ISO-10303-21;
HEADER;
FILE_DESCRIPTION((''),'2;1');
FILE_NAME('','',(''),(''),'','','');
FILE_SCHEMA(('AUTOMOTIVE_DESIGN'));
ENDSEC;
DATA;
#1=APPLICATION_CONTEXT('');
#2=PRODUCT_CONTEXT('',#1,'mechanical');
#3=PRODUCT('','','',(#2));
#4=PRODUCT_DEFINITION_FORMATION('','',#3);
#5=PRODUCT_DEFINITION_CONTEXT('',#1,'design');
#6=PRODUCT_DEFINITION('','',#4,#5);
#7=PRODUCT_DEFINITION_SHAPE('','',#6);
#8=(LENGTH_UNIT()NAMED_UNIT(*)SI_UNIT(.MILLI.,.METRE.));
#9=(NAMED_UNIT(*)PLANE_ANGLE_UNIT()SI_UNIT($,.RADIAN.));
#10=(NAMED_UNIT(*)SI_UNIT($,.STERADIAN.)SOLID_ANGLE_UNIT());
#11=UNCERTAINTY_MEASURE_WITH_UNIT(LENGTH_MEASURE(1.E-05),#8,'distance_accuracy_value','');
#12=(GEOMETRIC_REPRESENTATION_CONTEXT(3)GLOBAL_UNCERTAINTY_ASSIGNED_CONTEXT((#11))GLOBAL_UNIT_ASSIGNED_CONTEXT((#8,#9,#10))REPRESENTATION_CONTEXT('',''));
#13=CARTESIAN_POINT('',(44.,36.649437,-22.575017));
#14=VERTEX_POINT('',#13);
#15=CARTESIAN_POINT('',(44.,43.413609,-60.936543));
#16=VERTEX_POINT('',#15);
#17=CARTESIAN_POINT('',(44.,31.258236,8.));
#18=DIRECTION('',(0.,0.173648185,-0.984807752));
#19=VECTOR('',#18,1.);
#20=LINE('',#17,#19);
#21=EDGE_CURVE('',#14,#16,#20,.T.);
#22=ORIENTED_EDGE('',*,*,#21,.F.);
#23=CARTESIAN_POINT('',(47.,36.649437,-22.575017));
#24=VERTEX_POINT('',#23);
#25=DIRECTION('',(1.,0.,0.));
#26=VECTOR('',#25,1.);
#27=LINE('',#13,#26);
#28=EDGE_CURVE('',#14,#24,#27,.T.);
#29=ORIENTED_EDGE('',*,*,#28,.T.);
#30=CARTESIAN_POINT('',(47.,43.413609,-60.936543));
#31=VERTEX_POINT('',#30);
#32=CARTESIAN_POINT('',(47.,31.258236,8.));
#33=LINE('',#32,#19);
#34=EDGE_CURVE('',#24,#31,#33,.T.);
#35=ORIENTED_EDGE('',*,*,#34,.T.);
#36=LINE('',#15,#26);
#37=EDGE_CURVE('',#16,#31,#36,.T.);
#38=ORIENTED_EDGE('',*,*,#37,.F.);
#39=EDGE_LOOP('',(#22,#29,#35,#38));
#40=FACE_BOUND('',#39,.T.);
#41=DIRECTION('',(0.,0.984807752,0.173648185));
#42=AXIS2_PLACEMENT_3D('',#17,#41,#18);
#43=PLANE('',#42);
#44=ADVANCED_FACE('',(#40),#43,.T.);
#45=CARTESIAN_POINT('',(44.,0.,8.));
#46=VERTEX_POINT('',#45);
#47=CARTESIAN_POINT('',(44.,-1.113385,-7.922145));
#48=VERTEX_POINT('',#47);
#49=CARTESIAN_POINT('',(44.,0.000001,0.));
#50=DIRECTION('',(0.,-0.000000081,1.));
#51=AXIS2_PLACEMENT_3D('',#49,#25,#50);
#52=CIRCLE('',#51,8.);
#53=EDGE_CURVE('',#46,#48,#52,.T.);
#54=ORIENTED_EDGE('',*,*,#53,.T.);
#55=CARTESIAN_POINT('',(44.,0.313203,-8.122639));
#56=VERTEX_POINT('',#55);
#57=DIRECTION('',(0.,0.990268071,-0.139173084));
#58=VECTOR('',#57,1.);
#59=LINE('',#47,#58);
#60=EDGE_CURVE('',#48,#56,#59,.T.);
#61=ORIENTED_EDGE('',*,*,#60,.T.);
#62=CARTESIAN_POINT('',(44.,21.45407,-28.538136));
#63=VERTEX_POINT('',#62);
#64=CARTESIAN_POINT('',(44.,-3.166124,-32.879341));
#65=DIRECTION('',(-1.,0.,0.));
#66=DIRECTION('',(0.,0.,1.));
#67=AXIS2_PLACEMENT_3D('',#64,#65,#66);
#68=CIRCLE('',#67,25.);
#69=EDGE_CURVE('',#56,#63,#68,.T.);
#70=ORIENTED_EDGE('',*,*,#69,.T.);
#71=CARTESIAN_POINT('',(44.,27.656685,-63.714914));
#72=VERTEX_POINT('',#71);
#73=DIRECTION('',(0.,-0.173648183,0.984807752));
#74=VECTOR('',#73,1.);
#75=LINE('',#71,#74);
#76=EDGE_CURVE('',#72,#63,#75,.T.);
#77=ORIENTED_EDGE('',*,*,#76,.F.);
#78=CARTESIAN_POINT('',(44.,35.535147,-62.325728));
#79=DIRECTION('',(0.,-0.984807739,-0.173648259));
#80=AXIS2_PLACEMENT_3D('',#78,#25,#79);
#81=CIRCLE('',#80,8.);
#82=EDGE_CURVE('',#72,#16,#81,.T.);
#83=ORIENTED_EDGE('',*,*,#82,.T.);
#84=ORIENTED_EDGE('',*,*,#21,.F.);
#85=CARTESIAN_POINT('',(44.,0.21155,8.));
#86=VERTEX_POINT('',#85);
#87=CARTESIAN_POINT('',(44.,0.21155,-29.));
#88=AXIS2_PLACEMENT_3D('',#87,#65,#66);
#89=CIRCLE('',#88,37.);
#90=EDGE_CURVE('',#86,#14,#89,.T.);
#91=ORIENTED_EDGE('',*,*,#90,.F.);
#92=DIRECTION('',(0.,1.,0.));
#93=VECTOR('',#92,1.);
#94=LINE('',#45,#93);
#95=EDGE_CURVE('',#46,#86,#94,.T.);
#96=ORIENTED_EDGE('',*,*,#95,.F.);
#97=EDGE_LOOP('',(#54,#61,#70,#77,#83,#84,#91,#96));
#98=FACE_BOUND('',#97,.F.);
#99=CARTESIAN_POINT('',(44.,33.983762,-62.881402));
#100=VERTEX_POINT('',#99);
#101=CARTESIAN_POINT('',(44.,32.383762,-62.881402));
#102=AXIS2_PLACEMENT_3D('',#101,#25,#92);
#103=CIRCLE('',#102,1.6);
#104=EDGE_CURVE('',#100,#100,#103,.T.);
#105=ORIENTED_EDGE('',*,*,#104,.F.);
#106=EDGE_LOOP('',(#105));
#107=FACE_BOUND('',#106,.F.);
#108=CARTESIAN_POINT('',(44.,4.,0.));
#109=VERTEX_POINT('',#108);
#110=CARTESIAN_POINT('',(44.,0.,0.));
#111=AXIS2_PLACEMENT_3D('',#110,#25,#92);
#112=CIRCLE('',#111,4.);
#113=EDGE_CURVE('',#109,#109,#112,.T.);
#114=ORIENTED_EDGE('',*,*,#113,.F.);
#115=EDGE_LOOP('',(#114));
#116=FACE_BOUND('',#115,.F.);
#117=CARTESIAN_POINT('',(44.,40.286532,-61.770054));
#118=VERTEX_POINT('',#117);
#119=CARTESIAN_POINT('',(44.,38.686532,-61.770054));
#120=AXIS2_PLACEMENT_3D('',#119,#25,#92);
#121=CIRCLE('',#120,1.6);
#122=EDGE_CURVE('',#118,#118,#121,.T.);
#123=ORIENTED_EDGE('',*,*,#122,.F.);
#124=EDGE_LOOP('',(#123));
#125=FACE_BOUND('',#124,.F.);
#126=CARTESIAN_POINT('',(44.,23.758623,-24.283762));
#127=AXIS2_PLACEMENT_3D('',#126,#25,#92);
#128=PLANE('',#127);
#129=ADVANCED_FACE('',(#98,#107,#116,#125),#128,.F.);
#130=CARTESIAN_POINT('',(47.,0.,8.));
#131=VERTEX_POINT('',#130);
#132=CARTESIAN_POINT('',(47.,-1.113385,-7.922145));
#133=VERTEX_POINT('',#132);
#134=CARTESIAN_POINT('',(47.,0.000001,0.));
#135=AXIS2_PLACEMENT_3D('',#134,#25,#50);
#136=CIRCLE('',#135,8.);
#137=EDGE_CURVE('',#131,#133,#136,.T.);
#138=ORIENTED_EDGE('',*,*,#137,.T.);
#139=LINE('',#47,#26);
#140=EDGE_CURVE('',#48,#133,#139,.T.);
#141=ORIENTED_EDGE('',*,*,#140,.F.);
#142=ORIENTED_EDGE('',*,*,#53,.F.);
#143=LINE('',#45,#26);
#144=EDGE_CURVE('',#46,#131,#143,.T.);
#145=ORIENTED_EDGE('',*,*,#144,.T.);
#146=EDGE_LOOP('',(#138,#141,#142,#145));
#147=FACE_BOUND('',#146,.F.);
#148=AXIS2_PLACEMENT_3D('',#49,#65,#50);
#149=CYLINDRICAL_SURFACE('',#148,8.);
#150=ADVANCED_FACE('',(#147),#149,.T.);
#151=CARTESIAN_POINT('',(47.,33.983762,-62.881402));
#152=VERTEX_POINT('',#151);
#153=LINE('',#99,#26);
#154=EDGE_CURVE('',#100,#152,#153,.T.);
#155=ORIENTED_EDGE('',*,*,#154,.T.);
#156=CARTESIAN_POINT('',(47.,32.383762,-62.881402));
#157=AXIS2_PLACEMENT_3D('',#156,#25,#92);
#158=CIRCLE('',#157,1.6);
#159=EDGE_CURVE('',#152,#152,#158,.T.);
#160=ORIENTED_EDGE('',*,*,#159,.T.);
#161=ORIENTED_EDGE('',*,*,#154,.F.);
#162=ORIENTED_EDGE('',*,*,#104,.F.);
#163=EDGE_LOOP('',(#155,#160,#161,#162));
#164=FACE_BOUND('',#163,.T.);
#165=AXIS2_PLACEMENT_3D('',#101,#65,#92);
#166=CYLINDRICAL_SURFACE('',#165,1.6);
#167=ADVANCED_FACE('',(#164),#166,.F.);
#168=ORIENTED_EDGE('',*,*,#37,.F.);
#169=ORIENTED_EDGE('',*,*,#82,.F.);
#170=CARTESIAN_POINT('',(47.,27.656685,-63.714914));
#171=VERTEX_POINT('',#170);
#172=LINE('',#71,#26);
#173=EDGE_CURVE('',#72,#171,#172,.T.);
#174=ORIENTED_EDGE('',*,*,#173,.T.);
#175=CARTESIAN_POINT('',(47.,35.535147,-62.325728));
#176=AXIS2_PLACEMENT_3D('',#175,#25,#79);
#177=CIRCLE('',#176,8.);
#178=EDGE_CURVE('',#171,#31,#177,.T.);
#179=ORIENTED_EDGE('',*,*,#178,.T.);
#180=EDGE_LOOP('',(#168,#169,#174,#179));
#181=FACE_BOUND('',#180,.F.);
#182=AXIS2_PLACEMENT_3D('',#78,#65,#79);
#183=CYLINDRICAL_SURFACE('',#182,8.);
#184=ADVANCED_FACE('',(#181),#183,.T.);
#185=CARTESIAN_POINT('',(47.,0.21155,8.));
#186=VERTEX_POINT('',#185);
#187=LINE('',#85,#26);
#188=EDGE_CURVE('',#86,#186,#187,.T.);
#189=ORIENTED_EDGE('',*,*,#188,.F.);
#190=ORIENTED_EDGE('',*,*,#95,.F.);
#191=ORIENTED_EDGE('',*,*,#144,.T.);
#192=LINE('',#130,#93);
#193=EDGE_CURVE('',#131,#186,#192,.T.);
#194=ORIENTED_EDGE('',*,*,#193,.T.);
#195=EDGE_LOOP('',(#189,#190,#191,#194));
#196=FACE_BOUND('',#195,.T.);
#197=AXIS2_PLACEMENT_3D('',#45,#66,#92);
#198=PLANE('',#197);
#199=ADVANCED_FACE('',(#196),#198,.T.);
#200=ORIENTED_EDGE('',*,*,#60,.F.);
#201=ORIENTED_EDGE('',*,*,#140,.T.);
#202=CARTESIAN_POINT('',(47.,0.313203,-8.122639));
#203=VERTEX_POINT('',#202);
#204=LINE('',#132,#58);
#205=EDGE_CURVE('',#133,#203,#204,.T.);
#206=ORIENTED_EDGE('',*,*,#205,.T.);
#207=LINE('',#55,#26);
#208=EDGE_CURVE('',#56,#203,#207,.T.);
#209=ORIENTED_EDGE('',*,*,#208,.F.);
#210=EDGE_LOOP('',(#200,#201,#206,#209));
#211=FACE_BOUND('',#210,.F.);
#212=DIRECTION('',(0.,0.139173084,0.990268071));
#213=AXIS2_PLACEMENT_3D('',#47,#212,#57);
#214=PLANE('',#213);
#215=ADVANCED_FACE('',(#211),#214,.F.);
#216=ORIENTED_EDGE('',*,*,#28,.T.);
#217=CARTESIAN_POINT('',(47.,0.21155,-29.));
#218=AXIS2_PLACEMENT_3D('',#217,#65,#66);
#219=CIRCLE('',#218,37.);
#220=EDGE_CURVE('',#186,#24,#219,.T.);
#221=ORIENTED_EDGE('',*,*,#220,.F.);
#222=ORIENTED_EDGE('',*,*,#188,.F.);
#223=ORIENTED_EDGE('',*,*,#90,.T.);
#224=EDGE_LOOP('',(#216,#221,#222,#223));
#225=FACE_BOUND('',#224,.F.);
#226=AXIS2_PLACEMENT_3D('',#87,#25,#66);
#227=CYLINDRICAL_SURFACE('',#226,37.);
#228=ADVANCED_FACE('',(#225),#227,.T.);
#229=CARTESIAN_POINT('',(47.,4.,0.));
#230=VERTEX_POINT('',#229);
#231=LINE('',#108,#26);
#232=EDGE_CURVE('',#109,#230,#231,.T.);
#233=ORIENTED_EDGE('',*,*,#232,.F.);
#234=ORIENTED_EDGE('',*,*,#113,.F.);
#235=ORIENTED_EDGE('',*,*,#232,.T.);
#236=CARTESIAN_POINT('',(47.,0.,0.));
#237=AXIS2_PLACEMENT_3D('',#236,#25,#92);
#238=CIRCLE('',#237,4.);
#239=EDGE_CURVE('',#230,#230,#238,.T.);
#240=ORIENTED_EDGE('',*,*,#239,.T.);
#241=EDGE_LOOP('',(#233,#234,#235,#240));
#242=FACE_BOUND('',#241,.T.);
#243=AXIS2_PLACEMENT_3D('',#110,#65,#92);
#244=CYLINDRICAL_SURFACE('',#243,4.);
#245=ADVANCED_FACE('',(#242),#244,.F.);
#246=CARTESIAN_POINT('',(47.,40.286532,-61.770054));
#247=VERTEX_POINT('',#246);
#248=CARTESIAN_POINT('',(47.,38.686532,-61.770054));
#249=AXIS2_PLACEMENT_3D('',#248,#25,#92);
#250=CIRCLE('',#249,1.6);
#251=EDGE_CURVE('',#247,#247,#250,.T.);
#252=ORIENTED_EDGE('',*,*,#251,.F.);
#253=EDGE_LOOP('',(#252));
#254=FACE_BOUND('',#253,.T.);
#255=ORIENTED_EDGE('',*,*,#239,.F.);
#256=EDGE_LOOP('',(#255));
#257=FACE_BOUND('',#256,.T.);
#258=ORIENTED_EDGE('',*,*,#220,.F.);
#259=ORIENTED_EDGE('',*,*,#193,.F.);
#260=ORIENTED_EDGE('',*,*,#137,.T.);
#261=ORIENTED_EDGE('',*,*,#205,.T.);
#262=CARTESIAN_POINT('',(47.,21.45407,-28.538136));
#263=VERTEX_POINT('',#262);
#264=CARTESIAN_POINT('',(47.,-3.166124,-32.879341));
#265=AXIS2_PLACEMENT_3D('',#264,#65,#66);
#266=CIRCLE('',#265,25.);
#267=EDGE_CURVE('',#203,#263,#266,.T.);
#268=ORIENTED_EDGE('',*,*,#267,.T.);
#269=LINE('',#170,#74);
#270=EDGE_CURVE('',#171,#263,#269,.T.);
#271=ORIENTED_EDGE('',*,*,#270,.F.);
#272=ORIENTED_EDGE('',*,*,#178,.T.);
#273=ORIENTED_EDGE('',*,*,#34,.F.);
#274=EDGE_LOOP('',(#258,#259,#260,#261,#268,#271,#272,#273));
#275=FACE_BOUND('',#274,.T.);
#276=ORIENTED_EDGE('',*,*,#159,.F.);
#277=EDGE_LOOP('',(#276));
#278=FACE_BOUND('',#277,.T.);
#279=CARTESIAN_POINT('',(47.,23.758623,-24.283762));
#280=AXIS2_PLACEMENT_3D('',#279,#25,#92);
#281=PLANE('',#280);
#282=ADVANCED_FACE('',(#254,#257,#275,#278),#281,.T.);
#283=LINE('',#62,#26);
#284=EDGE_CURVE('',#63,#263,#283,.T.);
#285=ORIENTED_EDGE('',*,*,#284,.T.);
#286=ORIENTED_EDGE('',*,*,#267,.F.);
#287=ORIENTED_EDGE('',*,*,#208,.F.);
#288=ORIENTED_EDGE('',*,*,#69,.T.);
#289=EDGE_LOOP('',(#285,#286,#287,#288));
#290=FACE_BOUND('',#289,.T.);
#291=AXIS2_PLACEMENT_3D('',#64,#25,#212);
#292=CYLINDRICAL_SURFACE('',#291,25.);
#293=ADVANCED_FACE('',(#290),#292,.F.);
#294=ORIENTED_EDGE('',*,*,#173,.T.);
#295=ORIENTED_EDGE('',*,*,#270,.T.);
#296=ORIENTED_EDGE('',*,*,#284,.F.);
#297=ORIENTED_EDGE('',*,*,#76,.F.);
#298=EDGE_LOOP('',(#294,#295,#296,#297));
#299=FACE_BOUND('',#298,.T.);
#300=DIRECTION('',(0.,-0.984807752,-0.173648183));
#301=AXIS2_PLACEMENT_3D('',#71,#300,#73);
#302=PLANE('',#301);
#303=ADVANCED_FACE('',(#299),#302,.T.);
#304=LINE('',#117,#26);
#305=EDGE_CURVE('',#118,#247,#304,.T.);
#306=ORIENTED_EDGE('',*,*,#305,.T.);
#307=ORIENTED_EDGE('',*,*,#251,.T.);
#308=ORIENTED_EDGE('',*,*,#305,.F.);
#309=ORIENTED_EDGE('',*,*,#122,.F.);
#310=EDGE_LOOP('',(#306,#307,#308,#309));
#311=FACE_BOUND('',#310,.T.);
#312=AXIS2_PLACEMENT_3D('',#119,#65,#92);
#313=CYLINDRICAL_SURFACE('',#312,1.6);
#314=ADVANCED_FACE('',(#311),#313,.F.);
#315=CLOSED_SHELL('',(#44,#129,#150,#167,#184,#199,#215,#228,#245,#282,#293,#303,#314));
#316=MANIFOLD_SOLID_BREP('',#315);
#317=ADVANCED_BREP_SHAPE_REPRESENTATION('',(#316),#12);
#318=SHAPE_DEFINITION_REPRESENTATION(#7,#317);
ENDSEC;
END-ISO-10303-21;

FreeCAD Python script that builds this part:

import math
import FreeCAD as App
import Part
import Sketcher

V = App.Vector
Q = App.Units.Quantity


def edges_at(feature, points):
    """Names of the edges that pass closest to the given points."""
    edges = feature.Shape.Edges
    near = lambda p: min(range(len(edges)), key=lambda i: edges[i].distToShape(Part.Vertex(*p))[0])
    return sorted({f"Edge{near(p) + 1}" for p in points})

doc = App.newDocument("Part")
params = doc.addObject("Spreadsheet::Sheet", "Params")
for row, (alias, value) in enumerate([
    ("sketch1_diameter", "8 mm"),
    ("sketch1_radius", "8 mm"),
    ("sketch1_diameter2", "3.2 mm"),
    ("sketch1_length", "70 mm"),
    ("pad1_length", "3 mm"),
    ("fillet_radius", "25 mm"),
    ("fillet2_radius", "37 mm"),
], start=1):
    params.set(f"A{row}", alias)
    params.set(f"B{row}", "=" + value)
    params.setAlias(f"B{row}", alias)

body = doc.addObject("PartDesign::Body", "Body")

sketch1 = body.newObject("Sketcher::SketchObject", "Sketch")
sketch1.AttachmentSupport = (doc.getObject("YZ_Plane"), [""])
sketch1.MapMode = "FlatFace"
sketch1.addGeometry([
    Part.ArcOfCircle(Part.Circle(V(0, 0, 0), V(0, 0, 1), 8), math.radians(90), math.radians(262)),
    Part.LineSegment(V(-1.1, -7.9, 0), V(18.3, -10.7, 0)),
    Part.LineSegment(V(18.3, -10.7, 0), V(27.7, -63.7, 0)),
    Part.ArcOfCircle(Part.Circle(V(35.5, -62.3, 0), V(0, 0, 1), 8), math.radians(-170), math.radians(10)),
    Part.LineSegment(V(43.4, -60.9, 0), V(31.3, 8, 0)),
    Part.LineSegment(V(31.3, 8, 0), V(0, 8, 0)),
    Part.Circle(V(32.4, -62.9, 0), V(0, 0, 1), 1.6),
    Part.Circle(V(38.7, -61.8, 0), V(0, 0, 1), 1.6),
    Part.Circle(V(0, 0, 0), V(0, 0, 1), 4),
], False)
sketch1.addConstraint([
    Sketcher.Constraint("Tangent", 0, 2, 1, 1),
    Sketcher.Constraint("Coincident", 1, 2, 2, 1),
    Sketcher.Constraint("Tangent", 2, 2, 3, 1),
    Sketcher.Constraint("Tangent", 3, 2, 4, 1),
    Sketcher.Constraint("Coincident", 4, 2, 5, 1),
    Sketcher.Constraint("Tangent", 5, 2, 0, 1),
    Sketcher.Constraint("Horizontal", 5),
    Sketcher.Constraint("Coincident", 0, 3, -1, 1),
    Sketcher.Constraint("Coincident", 8, 3, -1, 1),
    Sketcher.Constraint("Equal", 0, 3),
    Sketcher.Constraint("Equal", 6, 7),
    Sketcher.Constraint("Parallel", 2, 4),
    Sketcher.Constraint("Diameter", 8, 8.0),
    Sketcher.Constraint("Radius", 0, 8.0),
    Sketcher.Constraint("Diameter", 6, 3.2),
    Sketcher.Constraint("Angle", 1, Q("-7.999999 deg")),
    Sketcher.Constraint("Angle", 2, Q("-80 deg")),
    Sketcher.Constraint("Distance", 4, 70.0),
    Sketcher.Constraint("DistanceX", -1, 1, 1, 2, 18.3),
    Sketcher.Constraint("DistanceY", 6, 3, 0, 3, 62.881402),
    Sketcher.Constraint("DistanceX", -1, 1, 6, 3, 32.383762),
    Sketcher.Constraint("DistanceX", 6, 3, 7, 3, 6.30277),
    Sketcher.Constraint("DistanceY", 7, 3, 0, 2, 53.847909),
])
sketch1.setExpression("Constraints[12]", "Params.sketch1_diameter")
sketch1.setExpression("Constraints[13]", "Params.sketch1_radius")
sketch1.setExpression("Constraints[14]", "Params.sketch1_diameter2")
sketch1.setExpression("Constraints[17]", "Params.sketch1_length")
pad1 = body.newObject("PartDesign::Pad", "Pad")
pad1.Profile = sketch1
pad1.setExpression("Length", "Params.pad1_length")
doc.recompute()

fillet = body.newObject("PartDesign::Fillet", "Fillet")
fillet.Base = (pad1, edges_at(pad1, [(1.5, 18.3, -10.651)]))
fillet.setExpression("Radius", "Params.fillet_radius")
doc.recompute()

fillet2 = body.newObject("PartDesign::Fillet", "Fillet001")
fillet2.Base = (fillet, edges_at(fillet, [(1.5, 31.258, 8)]))
fillet2.setExpression("Radius", "Params.fillet2_radius")
body2 = doc.addObject("PartDesign::Body", "Body001")
doc.recompute()

body.Placement = App.Placement(V(44, 0, 0), App.Rotation(V(0, 0, 1), 0))
boolean = body2.newObject("PartDesign::Boolean", "Boolean")
boolean.Type = "Fuse"
boolean.addObjects([body])

doc.recompute()
